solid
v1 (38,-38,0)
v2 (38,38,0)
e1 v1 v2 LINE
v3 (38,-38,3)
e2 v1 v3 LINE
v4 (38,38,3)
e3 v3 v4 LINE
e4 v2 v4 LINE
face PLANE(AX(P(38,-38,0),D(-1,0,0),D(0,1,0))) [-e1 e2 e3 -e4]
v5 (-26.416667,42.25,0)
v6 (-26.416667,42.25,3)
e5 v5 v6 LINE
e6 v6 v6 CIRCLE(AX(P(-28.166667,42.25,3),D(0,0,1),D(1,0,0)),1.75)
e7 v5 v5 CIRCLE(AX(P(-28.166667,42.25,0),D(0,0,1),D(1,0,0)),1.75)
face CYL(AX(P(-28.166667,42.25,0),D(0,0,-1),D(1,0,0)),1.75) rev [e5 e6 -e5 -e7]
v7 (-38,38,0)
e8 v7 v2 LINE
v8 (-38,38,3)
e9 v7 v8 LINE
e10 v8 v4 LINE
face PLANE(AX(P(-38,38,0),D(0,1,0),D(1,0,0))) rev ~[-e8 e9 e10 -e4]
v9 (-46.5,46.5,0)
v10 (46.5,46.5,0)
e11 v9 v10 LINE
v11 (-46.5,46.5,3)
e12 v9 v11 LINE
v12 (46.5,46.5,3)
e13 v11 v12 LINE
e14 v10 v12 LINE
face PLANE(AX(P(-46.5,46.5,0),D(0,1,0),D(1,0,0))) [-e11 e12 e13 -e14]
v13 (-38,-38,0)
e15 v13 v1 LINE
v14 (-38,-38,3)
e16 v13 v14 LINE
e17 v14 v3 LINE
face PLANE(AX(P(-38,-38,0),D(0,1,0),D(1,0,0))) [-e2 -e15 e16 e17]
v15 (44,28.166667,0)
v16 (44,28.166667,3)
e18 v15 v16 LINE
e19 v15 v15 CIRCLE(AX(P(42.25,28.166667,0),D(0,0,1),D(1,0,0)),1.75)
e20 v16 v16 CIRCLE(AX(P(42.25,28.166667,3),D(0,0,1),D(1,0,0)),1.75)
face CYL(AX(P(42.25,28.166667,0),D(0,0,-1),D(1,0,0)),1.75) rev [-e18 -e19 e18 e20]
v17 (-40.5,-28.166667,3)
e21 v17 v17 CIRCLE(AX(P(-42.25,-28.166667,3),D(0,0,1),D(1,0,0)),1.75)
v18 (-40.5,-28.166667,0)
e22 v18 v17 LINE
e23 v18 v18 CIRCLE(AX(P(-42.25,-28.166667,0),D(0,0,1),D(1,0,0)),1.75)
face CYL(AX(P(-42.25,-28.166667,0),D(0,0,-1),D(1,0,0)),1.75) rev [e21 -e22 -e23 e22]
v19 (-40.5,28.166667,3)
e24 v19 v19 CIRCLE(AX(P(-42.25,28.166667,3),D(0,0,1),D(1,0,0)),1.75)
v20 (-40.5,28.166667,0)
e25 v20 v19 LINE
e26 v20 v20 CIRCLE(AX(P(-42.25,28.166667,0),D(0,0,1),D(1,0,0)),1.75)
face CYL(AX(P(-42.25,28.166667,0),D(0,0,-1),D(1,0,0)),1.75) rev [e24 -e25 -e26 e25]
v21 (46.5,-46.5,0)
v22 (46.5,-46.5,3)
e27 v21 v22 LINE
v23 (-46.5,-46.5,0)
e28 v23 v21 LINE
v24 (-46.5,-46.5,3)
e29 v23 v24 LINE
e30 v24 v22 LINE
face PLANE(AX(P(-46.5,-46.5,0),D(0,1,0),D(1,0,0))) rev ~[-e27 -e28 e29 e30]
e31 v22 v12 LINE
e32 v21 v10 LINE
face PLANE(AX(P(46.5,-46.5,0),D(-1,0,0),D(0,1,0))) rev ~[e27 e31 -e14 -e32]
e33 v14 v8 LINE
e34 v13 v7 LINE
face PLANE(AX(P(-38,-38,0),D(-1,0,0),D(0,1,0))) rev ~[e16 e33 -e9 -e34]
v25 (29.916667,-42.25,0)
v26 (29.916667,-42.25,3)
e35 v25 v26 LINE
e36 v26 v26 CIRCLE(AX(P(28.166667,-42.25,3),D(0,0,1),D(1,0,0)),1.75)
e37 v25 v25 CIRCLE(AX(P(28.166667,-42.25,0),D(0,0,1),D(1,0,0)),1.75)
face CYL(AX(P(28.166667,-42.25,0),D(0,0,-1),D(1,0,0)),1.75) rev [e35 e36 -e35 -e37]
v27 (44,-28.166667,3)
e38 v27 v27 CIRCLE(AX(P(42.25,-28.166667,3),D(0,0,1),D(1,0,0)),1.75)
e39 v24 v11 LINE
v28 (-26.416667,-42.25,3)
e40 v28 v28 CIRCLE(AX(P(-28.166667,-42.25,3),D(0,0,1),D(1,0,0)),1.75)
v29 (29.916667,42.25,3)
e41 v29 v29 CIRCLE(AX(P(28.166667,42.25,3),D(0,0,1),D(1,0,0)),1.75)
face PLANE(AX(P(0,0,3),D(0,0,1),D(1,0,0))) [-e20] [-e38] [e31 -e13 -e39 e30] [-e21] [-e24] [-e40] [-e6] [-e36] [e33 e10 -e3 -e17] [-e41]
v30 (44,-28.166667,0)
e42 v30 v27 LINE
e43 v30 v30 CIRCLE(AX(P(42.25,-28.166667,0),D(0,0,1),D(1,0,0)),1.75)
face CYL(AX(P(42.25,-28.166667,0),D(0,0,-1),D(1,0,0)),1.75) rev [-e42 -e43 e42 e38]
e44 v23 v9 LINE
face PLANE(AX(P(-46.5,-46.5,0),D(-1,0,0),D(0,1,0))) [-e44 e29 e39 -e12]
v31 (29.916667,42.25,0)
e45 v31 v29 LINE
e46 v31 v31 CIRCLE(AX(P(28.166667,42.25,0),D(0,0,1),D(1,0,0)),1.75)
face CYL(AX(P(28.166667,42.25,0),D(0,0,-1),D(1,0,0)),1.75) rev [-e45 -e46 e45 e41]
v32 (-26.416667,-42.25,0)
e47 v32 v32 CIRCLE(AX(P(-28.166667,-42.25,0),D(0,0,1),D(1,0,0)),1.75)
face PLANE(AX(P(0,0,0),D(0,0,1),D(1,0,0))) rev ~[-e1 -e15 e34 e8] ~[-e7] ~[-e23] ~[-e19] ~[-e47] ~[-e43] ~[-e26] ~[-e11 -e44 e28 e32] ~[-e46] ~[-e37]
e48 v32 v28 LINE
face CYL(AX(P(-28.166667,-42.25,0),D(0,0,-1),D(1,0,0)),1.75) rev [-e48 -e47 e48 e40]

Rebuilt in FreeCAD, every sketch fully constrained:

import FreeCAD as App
import Part
import Sketcher
Q = App.Units.Quantity


def add_polygon(sketch, points):
    """Adds a closed chain of lines whose ends are joined by coincident constraints."""
    first, n = sketch.GeometryCount, len(points)
    for a, b in zip(points, points[1:] + points[:1]):
        sketch.addGeometry(Part.LineSegment(App.Vector(*a, 0), App.Vector(*b, 0)), False)
    for i in range(n):
        sketch.addConstraint(Sketcher.Constraint("Coincident", first + i, 2, first + (i + 1) % n, 1))

doc = App.newDocument("Part")
body = doc.addObject("PartDesign::Body", "Body")

sketch1 = body.newObject("Sketcher::SketchObject", "Sketch")
sketch1.AttachmentSupport = (doc.getObject("XY_Plane"), [""])
sketch1.MapMode = "FlatFace"
add_polygon(sketch1, [(-46.5, 46.5), (-46.5, -46.5), (46.5, -46.5), (46.5, 46.5)])
sketch1.addGeometry(Part.Circle(App.Vector(-28.166667, -42.25, 0), App.Vector(0, 0, 1), 1.75), False)
sketch1.addGeometry(Part.Circle(App.Vector(-42.25, -28.166667, 0), App.Vector(0, 0, 1), 1.75), False)
sketch1.addGeometry(Part.Circle(App.Vector(28.166667, -42.25, 0), App.Vector(0, 0, 1), 1.75), False)
sketch1.addGeometry(Part.Circle(App.Vector(42.25, -28.166667, 0), App.Vector(0, 0, 1), 1.75), False)
sketch1.addGeometry(Part.Circle(App.Vector(-42.25, 28.166667, 0), App.Vector(0, 0, 1), 1.75), False)
sketch1.addGeometry(Part.Circle(App.Vector(-28.166667, 42.25, 0), App.Vector(0, 0, 1), 1.75), False)
add_polygon(sketch1, [(38, -38), (-38, -38), (-38, 38), (38, 38)])
sketch1.addGeometry(Part.Circle(App.Vector(42.25, 28.166667, 0), App.Vector(0, 0, 1), 1.75), False)
sketch1.addGeometry(Part.Circle(App.Vector(28.166667, 42.25, 0), App.Vector(0, 0, 1), 1.75), False)
sketch1.addConstraint([
    Sketcher.Constraint("Vertical", 0),
    Sketcher.Constraint("Horizontal", 1),
    Sketcher.Constraint("Vertical", 2),
    Sketcher.Constraint("Horizontal", 3),
    Sketcher.Constraint("Horizontal", 10),
    Sketcher.Constraint("Vertical", 11),
    Sketcher.Constraint("Horizontal", 12),
    Sketcher.Constraint("Vertical", 13),
    Sketcher.Constraint("Equal", 4, 5),
    Sketcher.Constraint("Equal", 5, 6),
    Sketcher.Constraint("Equal", 6, 7),
    Sketcher.Constraint("Equal", 7, 8),
    Sketcher.Constraint("Equal", 8, 9),
    Sketcher.Constraint("Equal", 9, 14),
    Sketcher.Constraint("Equal", 14, 15),
    Sketcher.Constraint("Symmetric", 7, 3, 8, 3, -1, 1),
    Sketcher.Constraint("Symmetric", 6, 3, 9, 3, -1, 1),
    Sketcher.Constraint("Symmetric", 5, 3, 14, 3, -1, 1),
    Sketcher.Constraint("Symmetric", 4, 3, 15, 3, -1, 1),
    Sketcher.Constraint("Symmetric", 0, 2, 2, 2, -1, 1),
    Sketcher.Constraint("Symmetric", 10, 2, 12, 2, -1, 1),
    Sketcher.Constraint("Symmetric", 4, 3, 6, 3, -2),
    Sketcher.Constraint("Symmetric", 5, 3, 7, 3, -2),
    Sketcher.Constraint("Equal", 3, 0),
    Sketcher.Constraint("Equal", 12, 11),
    Sketcher.Constraint("Diameter", 4, Q("3.5 mm")),
    Sketcher.Constraint("DistanceX", 1, 1, 1, 2, Q("93 mm")),
    Sketcher.Constraint("DistanceX", 10, 2, 10, 1, Q("76 mm")),
    Sketcher.Constraint("DistanceX", 5, 3, 7, 3, Q("84.5 mm")),
    Sketcher.Constraint("DistanceY", 4, 3, 9, 3, Q("84.5 mm")),
    Sketcher.Constraint("DistanceX", 4, 3, -1, 1, Q("28.166667 mm")),
    Sketcher.Constraint("DistanceY", 5, 3, -1, 1, Q("28.166667 mm")),
])
pad1 = body.newObject("PartDesign::Pad", "Pad")
pad1.Profile = sketch1
pad1.Length = 3

doc.recompute()
